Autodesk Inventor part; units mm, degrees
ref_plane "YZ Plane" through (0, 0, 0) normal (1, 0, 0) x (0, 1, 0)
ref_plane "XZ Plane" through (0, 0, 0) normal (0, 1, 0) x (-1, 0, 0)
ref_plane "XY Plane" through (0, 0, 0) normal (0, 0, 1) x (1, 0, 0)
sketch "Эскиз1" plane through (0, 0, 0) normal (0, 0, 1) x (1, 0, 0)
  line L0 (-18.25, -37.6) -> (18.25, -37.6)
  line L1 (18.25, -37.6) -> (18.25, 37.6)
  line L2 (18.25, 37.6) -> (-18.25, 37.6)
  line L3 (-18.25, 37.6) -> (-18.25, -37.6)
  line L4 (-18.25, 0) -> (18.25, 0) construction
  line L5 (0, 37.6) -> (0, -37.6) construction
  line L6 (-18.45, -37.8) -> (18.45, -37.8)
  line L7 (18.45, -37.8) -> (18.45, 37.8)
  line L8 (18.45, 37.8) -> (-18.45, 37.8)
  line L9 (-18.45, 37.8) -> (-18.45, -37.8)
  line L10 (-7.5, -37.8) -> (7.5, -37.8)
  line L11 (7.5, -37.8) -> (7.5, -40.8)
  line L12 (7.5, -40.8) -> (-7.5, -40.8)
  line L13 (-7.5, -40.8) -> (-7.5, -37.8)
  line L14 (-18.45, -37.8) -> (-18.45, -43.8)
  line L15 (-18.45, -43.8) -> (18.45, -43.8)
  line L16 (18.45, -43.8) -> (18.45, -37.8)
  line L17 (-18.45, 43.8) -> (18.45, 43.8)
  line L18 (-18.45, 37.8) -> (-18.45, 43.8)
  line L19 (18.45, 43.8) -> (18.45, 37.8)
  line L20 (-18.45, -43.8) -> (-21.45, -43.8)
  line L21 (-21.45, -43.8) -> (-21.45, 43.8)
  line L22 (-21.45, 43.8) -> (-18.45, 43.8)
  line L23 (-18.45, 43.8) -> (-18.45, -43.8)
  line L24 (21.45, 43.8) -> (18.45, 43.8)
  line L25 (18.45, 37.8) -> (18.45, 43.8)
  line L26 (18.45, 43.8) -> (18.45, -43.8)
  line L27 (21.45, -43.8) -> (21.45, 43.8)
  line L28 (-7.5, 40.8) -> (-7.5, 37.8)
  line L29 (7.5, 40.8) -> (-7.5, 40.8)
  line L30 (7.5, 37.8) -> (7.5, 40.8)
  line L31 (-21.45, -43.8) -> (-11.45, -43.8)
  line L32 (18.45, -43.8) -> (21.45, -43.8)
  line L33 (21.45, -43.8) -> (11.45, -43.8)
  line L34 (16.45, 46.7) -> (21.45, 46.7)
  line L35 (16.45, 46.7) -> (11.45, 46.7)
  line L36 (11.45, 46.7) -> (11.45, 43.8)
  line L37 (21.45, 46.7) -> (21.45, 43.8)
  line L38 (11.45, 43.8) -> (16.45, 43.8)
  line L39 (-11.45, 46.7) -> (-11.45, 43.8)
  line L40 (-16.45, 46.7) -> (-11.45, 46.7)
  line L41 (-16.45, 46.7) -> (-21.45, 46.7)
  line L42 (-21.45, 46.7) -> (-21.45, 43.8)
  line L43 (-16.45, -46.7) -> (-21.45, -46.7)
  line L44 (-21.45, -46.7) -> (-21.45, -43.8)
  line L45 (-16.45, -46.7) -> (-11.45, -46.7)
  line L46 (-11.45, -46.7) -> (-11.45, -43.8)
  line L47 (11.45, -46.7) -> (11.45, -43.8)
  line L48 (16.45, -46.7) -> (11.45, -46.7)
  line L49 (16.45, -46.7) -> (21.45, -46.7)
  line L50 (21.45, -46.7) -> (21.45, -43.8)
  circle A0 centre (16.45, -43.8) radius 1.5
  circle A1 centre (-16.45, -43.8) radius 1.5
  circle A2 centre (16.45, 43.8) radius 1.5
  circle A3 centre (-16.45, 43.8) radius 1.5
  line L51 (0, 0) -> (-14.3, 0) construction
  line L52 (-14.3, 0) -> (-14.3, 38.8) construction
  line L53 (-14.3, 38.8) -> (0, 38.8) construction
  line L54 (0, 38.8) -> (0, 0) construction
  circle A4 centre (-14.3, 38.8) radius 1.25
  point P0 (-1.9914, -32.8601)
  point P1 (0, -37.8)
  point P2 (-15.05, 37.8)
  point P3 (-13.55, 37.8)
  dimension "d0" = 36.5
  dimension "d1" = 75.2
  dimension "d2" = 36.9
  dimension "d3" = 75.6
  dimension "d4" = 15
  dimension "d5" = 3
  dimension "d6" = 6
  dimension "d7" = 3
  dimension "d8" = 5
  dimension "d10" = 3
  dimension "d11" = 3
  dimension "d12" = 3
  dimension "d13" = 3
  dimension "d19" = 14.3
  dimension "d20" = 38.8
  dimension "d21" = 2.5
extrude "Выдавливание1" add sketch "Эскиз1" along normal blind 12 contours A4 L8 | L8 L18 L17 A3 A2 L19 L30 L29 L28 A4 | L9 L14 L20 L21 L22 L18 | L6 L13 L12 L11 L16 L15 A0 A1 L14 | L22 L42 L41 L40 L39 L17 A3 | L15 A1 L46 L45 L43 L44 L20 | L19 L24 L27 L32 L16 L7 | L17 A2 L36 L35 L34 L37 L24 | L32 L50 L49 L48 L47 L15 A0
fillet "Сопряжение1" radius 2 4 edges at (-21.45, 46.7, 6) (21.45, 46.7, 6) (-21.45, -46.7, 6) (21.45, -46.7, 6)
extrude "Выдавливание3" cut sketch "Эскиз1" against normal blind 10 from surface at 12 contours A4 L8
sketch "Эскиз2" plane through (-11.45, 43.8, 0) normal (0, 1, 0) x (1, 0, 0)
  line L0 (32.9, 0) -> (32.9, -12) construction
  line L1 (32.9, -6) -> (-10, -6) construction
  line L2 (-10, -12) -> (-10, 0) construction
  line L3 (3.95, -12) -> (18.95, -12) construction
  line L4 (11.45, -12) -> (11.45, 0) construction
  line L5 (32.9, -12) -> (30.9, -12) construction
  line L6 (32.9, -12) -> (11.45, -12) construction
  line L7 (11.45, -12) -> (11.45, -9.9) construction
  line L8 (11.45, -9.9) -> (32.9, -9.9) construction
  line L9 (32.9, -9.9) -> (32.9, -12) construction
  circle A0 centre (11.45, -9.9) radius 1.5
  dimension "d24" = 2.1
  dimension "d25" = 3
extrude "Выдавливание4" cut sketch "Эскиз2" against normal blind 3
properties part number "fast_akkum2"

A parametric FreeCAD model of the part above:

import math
import FreeCAD as App
import Part
import Sketcher
from FreeCAD import Vector


def edges_at(feature, points):
    """Names of the edges that pass closest to the given points."""
    edges = feature.Shape.Edges
    near = lambda p: min(range(len(edges)), key=lambda i: edges[i].distToShape(Part.Vertex(*p))[0])
    return sorted({f"Edge{near(p) + 1}" for p in points})

doc = App.newDocument("Part")
body = doc.addObject("PartDesign::Body", "Body")

sketch1 = doc.addObject("Sketcher::SketchObject", "Sketch")
body.addObject(sketch1)
sketch1.AttachmentSupport = (doc.XY_Plane, [""])
sketch1.MapMode = "FlatFace"
sketch1.addGeometry(Part.LineSegment(Vector(11.4, 43.8, 0), Vector(-11.4, 43.8, 0)), False)
sketch1.addGeometry(Part.LineSegment(Vector(-11.4, 43.8, 0), Vector(-11.4, 46.7, 0)), False)
sketch1.addGeometry(Part.LineSegment(Vector(-11.4, 46.7, 0), Vector(-21.4, 46.7, 0)), False)
sketch1.addGeometry(Part.LineSegment(Vector(-21.4, 46.7, 0), Vector(-21.4, -46.7, 0)), False)
sketch1.addGeometry(Part.LineSegment(Vector(-21.4, -46.7, 0), Vector(-11.4, -46.7, 0)), False)
sketch1.addGeometry(Part.LineSegment(Vector(-11.4, -46.7, 0), Vector(-11.4, -43.8, 0)), False)
sketch1.addGeometry(Part.LineSegment(Vector(-11.4, -43.8, 0), Vector(11.4, -43.8, 0)), False)
sketch1.addGeometry(Part.LineSegment(Vector(11.4, -43.8, 0), Vector(11.4, -46.7, 0)), False)
sketch1.addGeometry(Part.LineSegment(Vector(11.4, -46.7, 0), Vector(21.4, -46.7, 0)), False)
sketch1.addGeometry(Part.LineSegment(Vector(21.4, -46.7, 0), Vector(21.4, 46.7, 0)), False)
sketch1.addGeometry(Part.LineSegment(Vector(21.4, 46.7, 0), Vector(11.4, 46.7, 0)), False)
sketch1.addGeometry(Part.LineSegment(Vector(11.4, 46.7, 0), Vector(11.4, 43.8, 0)), False)
sketch1.addGeometry(Part.LineSegment(Vector(-7.5, 37.8, 0), Vector(-7.5, 40.8, 0)), False)
sketch1.addGeometry(Part.LineSegment(Vector(-7.5, 40.8, 0), Vector(7.5, 40.8, 0)), False)
sketch1.addGeometry(Part.LineSegment(Vector(7.5, 40.8, 0), Vector(7.5, 37.8, 0)), False)
sketch1.addGeometry(Part.LineSegment(Vector(7.5, 37.8, 0), Vector(18.4, 37.8, 0)), False)
sketch1.addGeometry(Part.LineSegment(Vector(18.4, 37.8, 0), Vector(18.4, -37.8, 0)), False)
sketch1.addGeometry(Part.LineSegment(Vector(18.4, -37.8, 0), Vector(7.5, -37.8, 0)), False)
sketch1.addGeometry(Part.LineSegment(Vector(7.5, -37.8, 0), Vector(7.5, -40.8, 0)), False)
sketch1.addGeometry(Part.LineSegment(Vector(7.5, -40.8, 0), Vector(-7.5, -40.8, 0)), False)
sketch1.addGeometry(Part.LineSegment(Vector(-7.5, -40.8, 0), Vector(-7.5, -37.8, 0)), False)
sketch1.addGeometry(Part.LineSegment(Vector(-7.5, -37.8, 0), Vector(-18.4, -37.8, 0)), False)
sketch1.addGeometry(Part.LineSegment(Vector(-18.4, -37.8, 0), Vector(-18.4, 37.8, 0)), False)
sketch1.addGeometry(Part.LineSegment(Vector(-18.4, 37.8, 0), Vector(-7.5, 37.8, 0)), False)
sketch1.addGeometry(Part.Circle(Vector(-16.4, 43.8, 0), Vector(0, 0, 1), 1.5), False)
sketch1.addGeometry(Part.Circle(Vector(16.4, 43.8, 0), Vector(0, 0, 1), 1.5), False)
sketch1.addGeometry(Part.Circle(Vector(16.4, -43.8, 0), Vector(0, 0, 1), 1.5), False)
sketch1.addGeometry(Part.Circle(Vector(-16.4, -43.8, 0), Vector(0, 0, 1), 1.5), False)
sketch1.addConstraint(Sketcher.Constraint("Coincident", 0, 2, 1, 1))
sketch1.addConstraint(Sketcher.Constraint("Coincident", 1, 2, 2, 1))
sketch1.addConstraint(Sketcher.Constraint("Coincident", 2, 2, 3, 1))
sketch1.addConstraint(Sketcher.Constraint("Coincident", 3, 2, 4, 1))
sketch1.addConstraint(Sketcher.Constraint("Coincident", 4, 2, 5, 1))
sketch1.addConstraint(Sketcher.Constraint("Coincident", 5, 2, 6, 1))
sketch1.addConstraint(Sketcher.Constraint("Coincident", 6, 2, 7, 1))
sketch1.addConstraint(Sketcher.Constraint("Coincident", 7, 2, 8, 1))
sketch1.addConstraint(Sketcher.Constraint("Coincident", 8, 2, 9, 1))
sketch1.addConstraint(Sketcher.Constraint("Coincident", 9, 2, 10, 1))
sketch1.addConstraint(Sketcher.Constraint("Coincident", 10, 2, 11, 1))
sketch1.addConstraint(Sketcher.Constraint("Coincident", 11, 2, 0, 1))
sketch1.addConstraint(Sketcher.Constraint("Coincident", 12, 2, 13, 1))
sketch1.addConstraint(Sketcher.Constraint("Coincident", 13, 2, 14, 1))
sketch1.addConstraint(Sketcher.Constraint("Coincident", 14, 2, 15, 1))
sketch1.addConstraint(Sketcher.Constraint("Coincident", 15, 2, 16, 1))
sketch1.addConstraint(Sketcher.Constraint("Coincident", 16, 2, 17, 1))
sketch1.addConstraint(Sketcher.Constraint("Coincident", 17, 2, 18, 1))
sketch1.addConstraint(Sketcher.Constraint("Coincident", 18, 2, 19, 1))
sketch1.addConstraint(Sketcher.Constraint("Coincident", 19, 2, 20, 1))
sketch1.addConstraint(Sketcher.Constraint("Coincident", 20, 2, 21, 1))
sketch1.addConstraint(Sketcher.Constraint("Coincident", 21, 2, 22, 1))
sketch1.addConstraint(Sketcher.Constraint("Coincident", 22, 2, 23, 1))
sketch1.addConstraint(Sketcher.Constraint("Coincident", 23, 2, 12, 1))
sketch1.addConstraint(Sketcher.Constraint("Horizontal", 0))
sketch1.addConstraint(Sketcher.Constraint("Vertical", 1))
sketch1.addConstraint(Sketcher.Constraint("Horizontal", 2))
sketch1.addConstraint(Sketcher.Constraint("Vertical", 3))
sketch1.addConstraint(Sketcher.Constraint("Horizontal", 4))
sketch1.addConstraint(Sketcher.Constraint("Vertical", 5))
sketch1.addConstraint(Sketcher.Constraint("Horizontal", 6))
sketch1.addConstraint(Sketcher.Constraint("Vertical", 7))
sketch1.addConstraint(Sketcher.Constraint("Horizontal", 8))
sketch1.addConstraint(Sketcher.Constraint("Vertical", 9))
sketch1.addConstraint(Sketcher.Constraint("Horizontal", 10))
sketch1.addConstraint(Sketcher.Constraint("Vertical", 11))
sketch1.addConstraint(Sketcher.Constraint("Vertical", 12))
sketch1.addConstraint(Sketcher.Constraint("Horizontal", 13))
sketch1.addConstraint(Sketcher.Constraint("Vertical", 14))
sketch1.addConstraint(Sketcher.Constraint("Horizontal", 15))
sketch1.addConstraint(Sketcher.Constraint("Vertical", 16))
sketch1.addConstraint(Sketcher.Constraint("Horizontal", 17))
sketch1.addConstraint(Sketcher.Constraint("Vertical", 18))
sketch1.addConstraint(Sketcher.Constraint("Horizontal", 19))
sketch1.addConstraint(Sketcher.Constraint("Vertical", 20))
sketch1.addConstraint(Sketcher.Constraint("Horizontal", 21))
sketch1.addConstraint(Sketcher.Constraint("Vertical", 22))
sketch1.addConstraint(Sketcher.Constraint("Horizontal", 23))
sketch1.addConstraint(Sketcher.Constraint("Equal", 24, 25))
sketch1.addConstraint(Sketcher.Constraint("Equal", 25, 26))
sketch1.addConstraint(Sketcher.Constraint("Equal", 26, 27))
sketch1.addConstraint(Sketcher.Constraint("Symmetric", 24, 3, 26, 3, -1, 1))
sketch1.addConstraint(Sketcher.Constraint("Symmetric", 25, 3, 27, 3, -1, 1))
sketch1.addConstraint(Sketcher.Constraint("Symmetric", 0, 2, 6, 2, -1, 1))
sketch1.addConstraint(Sketcher.Constraint("Symmetric", 2, 2, 8, 2, -1, 1))
sketch1.addConstraint(Sketcher.Constraint("Symmetric", 4, 2, 10, 2, -1, 1))
sketch1.addConstraint(Sketcher.Constraint("Symmetric", 12, 2, 18, 2, -1, 1))
sketch1.addConstraint(Sketcher.Constraint("Symmetric", 14, 2, 20, 2, -1, 1))
sketch1.addConstraint(Sketcher.Constraint("Symmetric", 16, 2, 22, 2, -1, 1))
sketch1.addConstraint(Sketcher.Constraint("Symmetric", 24, 3, 25, 3, -2))
sketch1.addConstraint(Sketcher.Constraint("Symmetric", 4, 2, 7, 2, -2))
sketch1.addConstraint(Sketcher.Constraint("Symmetric", 17, 2, 20, 2, -2))
sketch1.addConstraint(Sketcher.Constraint("Horizontal", 25, 3, 0, 2))
sketch1.addConstraint(Sketcher.Constraint("Diameter", 24, 3.0))
sketch1.addConstraint(Sketcher.Constraint("DistanceX", 13, 1, 13, 2, 15.0))
sketch1.addConstraint(Sketcher.Constraint("DistanceY", 12, 1, 12, 2, 3.0))
sketch1.addConstraint(Sketcher.Constraint("DistanceY", 16, 2, 16, 1, 75.6))
sketch1.addConstraint(Sketcher.Constraint("DistanceX", 24, 3, 0, 2, 5.0))
sketch1.addConstraint(Sketcher.Constraint("DistanceX", 2, 2, 24, 3, 5.0))
sketch1.addConstraint(Sketcher.Constraint("DistanceY", 12, 2, 0, 2, 3.0))
sketch1.addConstraint(Sketcher.Constraint("DistanceX", 15, 2, 9, 2, 3.0))
sketch1.addConstraint(Sketcher.Constraint("DistanceX", 0, 2, 0, 1, 22.9))
sketch1.addConstraint(Sketcher.Constraint("DistanceY", 1, 1, 1, 2, 2.9))
pad1 = doc.addObject("PartDesign::Pad", "Pad")
body.addObject(pad1)
pad1.Profile = sketch1
pad1.Length = 12
doc.recompute()

fillet = doc.addObject("PartDesign::Fillet", "Fillet")
body.addObject(fillet)
fillet.Base = (pad1, edges_at(pad1, [
    (-21.45, 46.7, 6),
    (21.45, 46.7, 6),
    (-21.45, -46.7, 6),
    (21.45, -46.7, 6),
]))
fillet.Radius = 2

sketch2 = doc.addObject("Sketcher::SketchObject", "Sketch001")
body.addObject(sketch2)
sketch2.AttachmentSupport = (doc.XY_Plane, [""])
sketch2.MapMode = "FlatFace"
sketch2.AttachmentOffset = App.Placement(Vector(0, 0, 12), App.Rotation())
sketch2.addGeometry(Part.ArcOfCircle(Part.Circle(Vector(-14.3, 38.8, 0), Vector(0, 0, 1), 1.2), math.radians(-53), math.radians(233)), False)
sketch2.addGeometry(Part.LineSegment(Vector(-15.1, 37.8, 0), Vector(-13.6, 37.8, 0)), False)
sketch2.addConstraint(Sketcher.Constraint("Coincident", 0, 1, 1, 2))
sketch2.addConstraint(Sketcher.Constraint("Coincident", 1, 1, 0, 2))
sketch2.addConstraint(Sketcher.Constraint("Horizontal", 1))
sketch2.addConstraint(Sketcher.Constraint("Radius", 0, 1.25))
sketch2.addConstraint(Sketcher.Constraint("DistanceX", 0, 3, -1, 1, 14.3))
sketch2.addConstraint(Sketcher.Constraint("DistanceY", -1, 1, 0, 3, 38.8))
sketch2.addConstraint(Sketcher.Constraint("DistanceX", 1, 1, 1, 2, 1.5))
pocket1 = doc.addObject("PartDesign::Pocket", "Pocket")
body.addObject(pocket1)
pocket1.Profile = sketch2
pocket1.Length = 10

sketch3 = doc.addObject("Sketcher::SketchObject", "Sketch002")
body.addObject(sketch3)
sketch3.AttachmentSupport = (doc.XZ_Plane, [""])
sketch3.MapMode = "FlatFace"
sketch3.AttachmentOffset = App.Placement(Vector(0, 0, -43.8), App.Rotation())
sketch3.addGeometry(Part.Circle(Vector(0, 9.9, 0), Vector(0, 0, 1), 1.5), False)
sketch3.addConstraint(Sketcher.Constraint("PointOnObject", 0, 3, -2))
sketch3.addConstraint(Sketcher.Constraint("Diameter", 0, 3.0))
sketch3.addConstraint(Sketcher.Constraint("DistanceY", -1, 1, 0, 3, 9.9))
pocket2 = doc.addObject("PartDesign::Pocket", "Pocket001")
body.addObject(pocket2)
pocket2.Profile = sketch3
pocket2.Length = 3
pocket2.Reversed = True

doc.recompute()
